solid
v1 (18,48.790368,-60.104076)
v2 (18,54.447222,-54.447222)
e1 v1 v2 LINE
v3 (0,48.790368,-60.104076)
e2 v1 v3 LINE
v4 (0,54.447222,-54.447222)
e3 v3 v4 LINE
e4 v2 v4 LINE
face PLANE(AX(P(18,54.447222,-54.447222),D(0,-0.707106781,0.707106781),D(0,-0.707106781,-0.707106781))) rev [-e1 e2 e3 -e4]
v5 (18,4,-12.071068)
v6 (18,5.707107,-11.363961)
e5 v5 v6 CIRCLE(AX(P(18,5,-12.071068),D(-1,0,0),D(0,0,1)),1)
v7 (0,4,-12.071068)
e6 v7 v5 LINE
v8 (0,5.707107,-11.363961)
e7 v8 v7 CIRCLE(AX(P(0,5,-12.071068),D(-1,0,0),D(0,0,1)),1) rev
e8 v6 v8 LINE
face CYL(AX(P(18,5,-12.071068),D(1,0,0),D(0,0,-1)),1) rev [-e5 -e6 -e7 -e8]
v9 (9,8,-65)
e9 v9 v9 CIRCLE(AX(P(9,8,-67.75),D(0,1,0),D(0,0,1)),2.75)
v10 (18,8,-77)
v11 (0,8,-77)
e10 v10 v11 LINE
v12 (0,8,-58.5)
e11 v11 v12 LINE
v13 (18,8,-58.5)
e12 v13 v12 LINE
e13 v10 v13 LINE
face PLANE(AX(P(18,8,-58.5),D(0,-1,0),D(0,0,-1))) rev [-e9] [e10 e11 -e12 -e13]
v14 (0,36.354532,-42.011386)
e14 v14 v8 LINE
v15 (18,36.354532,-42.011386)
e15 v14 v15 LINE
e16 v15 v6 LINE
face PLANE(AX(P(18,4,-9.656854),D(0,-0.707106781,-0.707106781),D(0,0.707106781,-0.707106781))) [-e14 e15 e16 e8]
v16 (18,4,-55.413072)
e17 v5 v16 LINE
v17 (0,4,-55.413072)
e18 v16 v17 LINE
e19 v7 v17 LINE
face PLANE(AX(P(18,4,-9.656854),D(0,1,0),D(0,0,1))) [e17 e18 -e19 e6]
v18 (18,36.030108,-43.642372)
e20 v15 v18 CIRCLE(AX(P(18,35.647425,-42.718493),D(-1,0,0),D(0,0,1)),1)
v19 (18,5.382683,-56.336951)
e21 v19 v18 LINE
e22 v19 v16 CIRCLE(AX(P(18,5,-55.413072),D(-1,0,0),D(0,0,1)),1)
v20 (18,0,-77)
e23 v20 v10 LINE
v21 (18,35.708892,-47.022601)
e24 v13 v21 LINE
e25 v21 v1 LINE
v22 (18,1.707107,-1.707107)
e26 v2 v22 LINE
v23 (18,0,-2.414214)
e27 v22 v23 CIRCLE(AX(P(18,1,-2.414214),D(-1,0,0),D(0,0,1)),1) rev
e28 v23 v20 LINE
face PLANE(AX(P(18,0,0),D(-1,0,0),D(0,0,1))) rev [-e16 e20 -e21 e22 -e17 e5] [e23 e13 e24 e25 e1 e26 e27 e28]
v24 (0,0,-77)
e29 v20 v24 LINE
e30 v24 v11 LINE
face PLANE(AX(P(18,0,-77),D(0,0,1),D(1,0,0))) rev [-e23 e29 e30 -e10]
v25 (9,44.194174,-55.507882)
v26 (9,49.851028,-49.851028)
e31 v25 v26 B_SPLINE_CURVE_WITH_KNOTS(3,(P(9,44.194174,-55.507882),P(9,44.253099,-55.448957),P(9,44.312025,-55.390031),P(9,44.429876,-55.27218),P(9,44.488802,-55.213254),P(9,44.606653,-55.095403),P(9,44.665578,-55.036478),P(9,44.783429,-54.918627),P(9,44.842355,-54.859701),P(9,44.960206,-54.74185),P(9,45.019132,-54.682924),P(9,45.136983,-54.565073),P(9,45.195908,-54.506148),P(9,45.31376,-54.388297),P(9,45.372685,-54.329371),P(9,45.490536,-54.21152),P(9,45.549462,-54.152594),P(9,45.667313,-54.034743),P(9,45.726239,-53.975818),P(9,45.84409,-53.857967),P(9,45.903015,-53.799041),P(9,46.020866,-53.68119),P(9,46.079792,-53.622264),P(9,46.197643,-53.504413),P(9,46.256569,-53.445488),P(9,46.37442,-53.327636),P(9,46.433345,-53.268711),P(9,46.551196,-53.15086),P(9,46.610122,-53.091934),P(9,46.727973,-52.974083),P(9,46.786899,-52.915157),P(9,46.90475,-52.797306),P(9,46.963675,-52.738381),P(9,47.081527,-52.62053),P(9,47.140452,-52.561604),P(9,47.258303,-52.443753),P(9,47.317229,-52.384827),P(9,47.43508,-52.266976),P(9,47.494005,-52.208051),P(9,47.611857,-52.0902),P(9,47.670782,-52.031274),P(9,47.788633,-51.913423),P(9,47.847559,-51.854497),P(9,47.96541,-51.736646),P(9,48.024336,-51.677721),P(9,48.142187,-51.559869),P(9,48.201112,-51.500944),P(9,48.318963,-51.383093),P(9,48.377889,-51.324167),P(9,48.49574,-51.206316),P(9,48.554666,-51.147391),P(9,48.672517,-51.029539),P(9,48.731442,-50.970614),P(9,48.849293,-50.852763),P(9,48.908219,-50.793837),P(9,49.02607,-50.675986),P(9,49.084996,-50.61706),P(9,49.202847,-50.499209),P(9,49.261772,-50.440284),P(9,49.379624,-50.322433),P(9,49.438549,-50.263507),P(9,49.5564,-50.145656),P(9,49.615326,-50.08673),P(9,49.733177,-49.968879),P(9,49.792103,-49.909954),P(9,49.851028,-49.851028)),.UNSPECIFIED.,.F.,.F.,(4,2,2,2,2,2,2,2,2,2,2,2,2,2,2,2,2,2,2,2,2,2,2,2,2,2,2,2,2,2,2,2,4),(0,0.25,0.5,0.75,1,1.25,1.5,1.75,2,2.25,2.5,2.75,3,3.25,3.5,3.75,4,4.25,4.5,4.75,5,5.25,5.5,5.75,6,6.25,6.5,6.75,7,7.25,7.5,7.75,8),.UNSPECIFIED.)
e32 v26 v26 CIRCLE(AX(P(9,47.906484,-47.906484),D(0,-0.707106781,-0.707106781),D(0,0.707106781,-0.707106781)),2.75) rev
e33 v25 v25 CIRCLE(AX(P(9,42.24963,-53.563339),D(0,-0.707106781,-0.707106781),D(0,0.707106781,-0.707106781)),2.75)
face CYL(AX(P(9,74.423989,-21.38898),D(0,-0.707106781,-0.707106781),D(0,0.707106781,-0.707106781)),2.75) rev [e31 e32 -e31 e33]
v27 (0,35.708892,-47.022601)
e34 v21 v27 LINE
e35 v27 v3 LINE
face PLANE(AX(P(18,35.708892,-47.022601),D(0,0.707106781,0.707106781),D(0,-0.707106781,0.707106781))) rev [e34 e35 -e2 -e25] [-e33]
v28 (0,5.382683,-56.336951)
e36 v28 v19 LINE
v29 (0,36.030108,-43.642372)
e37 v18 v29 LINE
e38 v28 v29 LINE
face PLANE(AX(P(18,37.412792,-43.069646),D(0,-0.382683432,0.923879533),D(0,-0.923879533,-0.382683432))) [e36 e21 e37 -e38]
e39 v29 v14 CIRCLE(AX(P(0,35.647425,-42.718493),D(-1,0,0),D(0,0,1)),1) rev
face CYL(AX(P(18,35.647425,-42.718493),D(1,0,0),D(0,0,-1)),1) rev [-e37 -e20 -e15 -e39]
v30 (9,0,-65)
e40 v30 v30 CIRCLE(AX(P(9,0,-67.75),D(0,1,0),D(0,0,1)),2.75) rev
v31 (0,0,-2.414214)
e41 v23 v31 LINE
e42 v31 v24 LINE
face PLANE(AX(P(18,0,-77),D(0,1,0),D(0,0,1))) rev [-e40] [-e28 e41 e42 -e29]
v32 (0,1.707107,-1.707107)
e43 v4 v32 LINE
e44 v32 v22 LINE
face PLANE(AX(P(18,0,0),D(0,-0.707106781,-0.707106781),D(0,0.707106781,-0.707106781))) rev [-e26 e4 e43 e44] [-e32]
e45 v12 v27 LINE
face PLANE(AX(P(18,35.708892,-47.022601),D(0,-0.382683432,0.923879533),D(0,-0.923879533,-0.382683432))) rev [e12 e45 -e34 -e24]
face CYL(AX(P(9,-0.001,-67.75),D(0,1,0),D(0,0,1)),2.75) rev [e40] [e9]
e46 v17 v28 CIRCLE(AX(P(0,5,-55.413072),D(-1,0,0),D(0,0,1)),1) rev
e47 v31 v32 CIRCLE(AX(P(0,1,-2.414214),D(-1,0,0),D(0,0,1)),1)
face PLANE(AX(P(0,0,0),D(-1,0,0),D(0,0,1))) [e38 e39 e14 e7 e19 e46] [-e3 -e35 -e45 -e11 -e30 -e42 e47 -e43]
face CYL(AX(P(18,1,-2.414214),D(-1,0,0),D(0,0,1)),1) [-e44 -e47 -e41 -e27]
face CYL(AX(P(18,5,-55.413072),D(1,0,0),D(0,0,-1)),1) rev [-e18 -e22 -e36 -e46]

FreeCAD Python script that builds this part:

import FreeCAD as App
import Part
import Sketcher
from FreeCAD import Vector
Q = App.Units.Quantity


def edges_at(feature, points):
    """Names of the edges that pass closest to the given points."""
    edges = feature.Shape.Edges
    near = lambda p: min(range(len(edges)), key=lambda i: edges[i].distToShape(Part.Vertex(*p))[0])
    return sorted({f"Edge{near(p) + 1}" for p in points})

doc = App.newDocument("Part")
body = doc.addObject("PartDesign::Body", "Body")

sketch1 = body.newObject("Sketcher::SketchObject", "Sketch")
sketch1.AttachmentSupport = (doc.getObject("YZ_Plane"), [""])
sketch1.MapMode = "FlatFace"
sketch1.addGeometry([
    Part.LineSegment(Vector(0, 0, 0), Vector(0, -77, 0)),
    Part.LineSegment(Vector(0, -77, 0), Vector(8, -77, 0)),
    Part.LineSegment(Vector(8, -77, 0), Vector(8, -58, 0)),
    Part.LineSegment(Vector(8, -58, 0), Vector(36, -47, 0)),
    Part.LineSegment(Vector(36, -47, 0), Vector(49, -60, 0)),
    Part.LineSegment(Vector(49, -60, 0), Vector(54, -54, 0)),
    Part.LineSegment(Vector(54, -54, 0), Vector(0, 0, 0)),
    Part.LineSegment(Vector(4, -10, 0), Vector(37, -43, 0)),
    Part.LineSegment(Vector(37, -43, 0), Vector(4, -57, 0)),
    Part.LineSegment(Vector(4, -57, 0), Vector(4, -10, 0)),
], False)
sketch1.addConstraint([
    Sketcher.Constraint("Coincident", 0, 2, 1, 1),
    Sketcher.Constraint("Coincident", 1, 2, 2, 1),
    Sketcher.Constraint("Coincident", 2, 2, 3, 1),
    Sketcher.Constraint("Coincident", 3, 2, 4, 1),
    Sketcher.Constraint("Coincident", 4, 2, 5, 1),
    Sketcher.Constraint("Coincident", 5, 2, 6, 1),
    Sketcher.Constraint("Coincident", 6, 2, 0, 1),
    Sketcher.Constraint("Coincident", 7, 2, 8, 1),
    Sketcher.Constraint("Coincident", 8, 2, 9, 1),
    Sketcher.Constraint("Coincident", 9, 2, 7, 1),
    Sketcher.Constraint("Vertical", 0),
    Sketcher.Constraint("Horizontal", 1),
    Sketcher.Constraint("Vertical", 2),
    Sketcher.Constraint("Vertical", 9),
    Sketcher.Constraint("Coincident", 6, 2, -1, 1),
    Sketcher.Constraint("Perpendicular", 4, 5),
    Sketcher.Constraint("Perpendicular", 5, 6),
    Sketcher.Constraint("Parallel", 6, 7),
    Sketcher.Constraint("Parallel", 3, 8),
    Sketcher.Constraint("DistanceX", 1, 1, 1, 2, 8.0),
    Sketcher.Constraint("DistanceY", 0, 2, 0, 1, 77.0),
    Sketcher.Constraint("Angle", 4, Q("-45 deg")),
    Sketcher.Constraint("Distance", 5, 8.0),
    Sketcher.Constraint("Distance", 6, 77.0),
    Sketcher.Constraint("DistanceY", 2, 1, 2, 2, 18.5),
    Sketcher.Constraint("DistanceX", -1, 1, 8, 2, 4.0),
    Sketcher.Constraint("Angle", 3, Q("22.5 deg")),
    Sketcher.Constraint("DistanceX", 3, 2, 7, 2, 1.703899),
    Sketcher.Constraint("DistanceY", 4, 2, 7, 2, 17.03443),
])
pad1 = body.newObject("PartDesign::Pad", "Pad")
pad1.Profile = sketch1
pad1.Length = 18
doc.recompute()

fillet = body.newObject("PartDesign::Fillet", "Fillet")
fillet.Base = (pad1, edges_at(pad1, [
    (9, 0, 0),
    (9, 37.413, -43.07),
    (9, 4, -9.657),
    (9, 4, -56.91),
]))
fillet.Radius = 1

sketch2 = body.newObject("Sketcher::SketchObject", "Sketch001")
sketch2.AttachmentSupport = (doc.getObject("XZ_Plane"), [""])
sketch2.MapMode = "FlatFace"
sketch2.AttachmentOffset = App.Placement(Vector(0, 0, -8), App.Rotation())
sketch2.addGeometry(Part.Circle(Vector(9, -67.8, 0), Vector(0, 0, 1), 2.8), False)
sketch2.addConstraint([
    Sketcher.Constraint("Diameter", 0, 5.5),
    Sketcher.Constraint("DistanceX", -1, 1, 0, 3, 9.0),
    Sketcher.Constraint("DistanceY", 0, 3, -1, 1, 67.75),
])
pocket1 = body.newObject("PartDesign::Pocket", "Pocket")
pocket1.Profile = sketch2
pocket1.Type = "UpToFirst"
pocket1.Reversed = True

sketch3 = body.newObject("Sketcher::SketchObject", "Sketch002")
sketch3.Placement = App.Placement(Vector(0, -5.656854, -5.656854), App.Rotation(Vector(1, 0, 0), Vector(0, -0.707106781, 0.707106781), Vector(0, -0.707106781, -0.707106781), "ZXY"))
sketch3.addGeometry(Part.Circle(Vector(9, -67.7, 0), Vector(0, 0, 1), 2.8), False)
sketch3.addConstraint([
    Sketcher.Constraint("Diameter", 0, 5.5),
    Sketcher.Constraint("DistanceX", -1, 1, 0, 3, 9.0),
    Sketcher.Constraint("DistanceY", 0, 3, -1, 1, 67.75),
])
pocket2 = body.newObject("PartDesign::Pocket", "Pocket001")
pocket2.Profile = sketch3
pocket2.Type = "UpToFirst"

doc.recompute()
